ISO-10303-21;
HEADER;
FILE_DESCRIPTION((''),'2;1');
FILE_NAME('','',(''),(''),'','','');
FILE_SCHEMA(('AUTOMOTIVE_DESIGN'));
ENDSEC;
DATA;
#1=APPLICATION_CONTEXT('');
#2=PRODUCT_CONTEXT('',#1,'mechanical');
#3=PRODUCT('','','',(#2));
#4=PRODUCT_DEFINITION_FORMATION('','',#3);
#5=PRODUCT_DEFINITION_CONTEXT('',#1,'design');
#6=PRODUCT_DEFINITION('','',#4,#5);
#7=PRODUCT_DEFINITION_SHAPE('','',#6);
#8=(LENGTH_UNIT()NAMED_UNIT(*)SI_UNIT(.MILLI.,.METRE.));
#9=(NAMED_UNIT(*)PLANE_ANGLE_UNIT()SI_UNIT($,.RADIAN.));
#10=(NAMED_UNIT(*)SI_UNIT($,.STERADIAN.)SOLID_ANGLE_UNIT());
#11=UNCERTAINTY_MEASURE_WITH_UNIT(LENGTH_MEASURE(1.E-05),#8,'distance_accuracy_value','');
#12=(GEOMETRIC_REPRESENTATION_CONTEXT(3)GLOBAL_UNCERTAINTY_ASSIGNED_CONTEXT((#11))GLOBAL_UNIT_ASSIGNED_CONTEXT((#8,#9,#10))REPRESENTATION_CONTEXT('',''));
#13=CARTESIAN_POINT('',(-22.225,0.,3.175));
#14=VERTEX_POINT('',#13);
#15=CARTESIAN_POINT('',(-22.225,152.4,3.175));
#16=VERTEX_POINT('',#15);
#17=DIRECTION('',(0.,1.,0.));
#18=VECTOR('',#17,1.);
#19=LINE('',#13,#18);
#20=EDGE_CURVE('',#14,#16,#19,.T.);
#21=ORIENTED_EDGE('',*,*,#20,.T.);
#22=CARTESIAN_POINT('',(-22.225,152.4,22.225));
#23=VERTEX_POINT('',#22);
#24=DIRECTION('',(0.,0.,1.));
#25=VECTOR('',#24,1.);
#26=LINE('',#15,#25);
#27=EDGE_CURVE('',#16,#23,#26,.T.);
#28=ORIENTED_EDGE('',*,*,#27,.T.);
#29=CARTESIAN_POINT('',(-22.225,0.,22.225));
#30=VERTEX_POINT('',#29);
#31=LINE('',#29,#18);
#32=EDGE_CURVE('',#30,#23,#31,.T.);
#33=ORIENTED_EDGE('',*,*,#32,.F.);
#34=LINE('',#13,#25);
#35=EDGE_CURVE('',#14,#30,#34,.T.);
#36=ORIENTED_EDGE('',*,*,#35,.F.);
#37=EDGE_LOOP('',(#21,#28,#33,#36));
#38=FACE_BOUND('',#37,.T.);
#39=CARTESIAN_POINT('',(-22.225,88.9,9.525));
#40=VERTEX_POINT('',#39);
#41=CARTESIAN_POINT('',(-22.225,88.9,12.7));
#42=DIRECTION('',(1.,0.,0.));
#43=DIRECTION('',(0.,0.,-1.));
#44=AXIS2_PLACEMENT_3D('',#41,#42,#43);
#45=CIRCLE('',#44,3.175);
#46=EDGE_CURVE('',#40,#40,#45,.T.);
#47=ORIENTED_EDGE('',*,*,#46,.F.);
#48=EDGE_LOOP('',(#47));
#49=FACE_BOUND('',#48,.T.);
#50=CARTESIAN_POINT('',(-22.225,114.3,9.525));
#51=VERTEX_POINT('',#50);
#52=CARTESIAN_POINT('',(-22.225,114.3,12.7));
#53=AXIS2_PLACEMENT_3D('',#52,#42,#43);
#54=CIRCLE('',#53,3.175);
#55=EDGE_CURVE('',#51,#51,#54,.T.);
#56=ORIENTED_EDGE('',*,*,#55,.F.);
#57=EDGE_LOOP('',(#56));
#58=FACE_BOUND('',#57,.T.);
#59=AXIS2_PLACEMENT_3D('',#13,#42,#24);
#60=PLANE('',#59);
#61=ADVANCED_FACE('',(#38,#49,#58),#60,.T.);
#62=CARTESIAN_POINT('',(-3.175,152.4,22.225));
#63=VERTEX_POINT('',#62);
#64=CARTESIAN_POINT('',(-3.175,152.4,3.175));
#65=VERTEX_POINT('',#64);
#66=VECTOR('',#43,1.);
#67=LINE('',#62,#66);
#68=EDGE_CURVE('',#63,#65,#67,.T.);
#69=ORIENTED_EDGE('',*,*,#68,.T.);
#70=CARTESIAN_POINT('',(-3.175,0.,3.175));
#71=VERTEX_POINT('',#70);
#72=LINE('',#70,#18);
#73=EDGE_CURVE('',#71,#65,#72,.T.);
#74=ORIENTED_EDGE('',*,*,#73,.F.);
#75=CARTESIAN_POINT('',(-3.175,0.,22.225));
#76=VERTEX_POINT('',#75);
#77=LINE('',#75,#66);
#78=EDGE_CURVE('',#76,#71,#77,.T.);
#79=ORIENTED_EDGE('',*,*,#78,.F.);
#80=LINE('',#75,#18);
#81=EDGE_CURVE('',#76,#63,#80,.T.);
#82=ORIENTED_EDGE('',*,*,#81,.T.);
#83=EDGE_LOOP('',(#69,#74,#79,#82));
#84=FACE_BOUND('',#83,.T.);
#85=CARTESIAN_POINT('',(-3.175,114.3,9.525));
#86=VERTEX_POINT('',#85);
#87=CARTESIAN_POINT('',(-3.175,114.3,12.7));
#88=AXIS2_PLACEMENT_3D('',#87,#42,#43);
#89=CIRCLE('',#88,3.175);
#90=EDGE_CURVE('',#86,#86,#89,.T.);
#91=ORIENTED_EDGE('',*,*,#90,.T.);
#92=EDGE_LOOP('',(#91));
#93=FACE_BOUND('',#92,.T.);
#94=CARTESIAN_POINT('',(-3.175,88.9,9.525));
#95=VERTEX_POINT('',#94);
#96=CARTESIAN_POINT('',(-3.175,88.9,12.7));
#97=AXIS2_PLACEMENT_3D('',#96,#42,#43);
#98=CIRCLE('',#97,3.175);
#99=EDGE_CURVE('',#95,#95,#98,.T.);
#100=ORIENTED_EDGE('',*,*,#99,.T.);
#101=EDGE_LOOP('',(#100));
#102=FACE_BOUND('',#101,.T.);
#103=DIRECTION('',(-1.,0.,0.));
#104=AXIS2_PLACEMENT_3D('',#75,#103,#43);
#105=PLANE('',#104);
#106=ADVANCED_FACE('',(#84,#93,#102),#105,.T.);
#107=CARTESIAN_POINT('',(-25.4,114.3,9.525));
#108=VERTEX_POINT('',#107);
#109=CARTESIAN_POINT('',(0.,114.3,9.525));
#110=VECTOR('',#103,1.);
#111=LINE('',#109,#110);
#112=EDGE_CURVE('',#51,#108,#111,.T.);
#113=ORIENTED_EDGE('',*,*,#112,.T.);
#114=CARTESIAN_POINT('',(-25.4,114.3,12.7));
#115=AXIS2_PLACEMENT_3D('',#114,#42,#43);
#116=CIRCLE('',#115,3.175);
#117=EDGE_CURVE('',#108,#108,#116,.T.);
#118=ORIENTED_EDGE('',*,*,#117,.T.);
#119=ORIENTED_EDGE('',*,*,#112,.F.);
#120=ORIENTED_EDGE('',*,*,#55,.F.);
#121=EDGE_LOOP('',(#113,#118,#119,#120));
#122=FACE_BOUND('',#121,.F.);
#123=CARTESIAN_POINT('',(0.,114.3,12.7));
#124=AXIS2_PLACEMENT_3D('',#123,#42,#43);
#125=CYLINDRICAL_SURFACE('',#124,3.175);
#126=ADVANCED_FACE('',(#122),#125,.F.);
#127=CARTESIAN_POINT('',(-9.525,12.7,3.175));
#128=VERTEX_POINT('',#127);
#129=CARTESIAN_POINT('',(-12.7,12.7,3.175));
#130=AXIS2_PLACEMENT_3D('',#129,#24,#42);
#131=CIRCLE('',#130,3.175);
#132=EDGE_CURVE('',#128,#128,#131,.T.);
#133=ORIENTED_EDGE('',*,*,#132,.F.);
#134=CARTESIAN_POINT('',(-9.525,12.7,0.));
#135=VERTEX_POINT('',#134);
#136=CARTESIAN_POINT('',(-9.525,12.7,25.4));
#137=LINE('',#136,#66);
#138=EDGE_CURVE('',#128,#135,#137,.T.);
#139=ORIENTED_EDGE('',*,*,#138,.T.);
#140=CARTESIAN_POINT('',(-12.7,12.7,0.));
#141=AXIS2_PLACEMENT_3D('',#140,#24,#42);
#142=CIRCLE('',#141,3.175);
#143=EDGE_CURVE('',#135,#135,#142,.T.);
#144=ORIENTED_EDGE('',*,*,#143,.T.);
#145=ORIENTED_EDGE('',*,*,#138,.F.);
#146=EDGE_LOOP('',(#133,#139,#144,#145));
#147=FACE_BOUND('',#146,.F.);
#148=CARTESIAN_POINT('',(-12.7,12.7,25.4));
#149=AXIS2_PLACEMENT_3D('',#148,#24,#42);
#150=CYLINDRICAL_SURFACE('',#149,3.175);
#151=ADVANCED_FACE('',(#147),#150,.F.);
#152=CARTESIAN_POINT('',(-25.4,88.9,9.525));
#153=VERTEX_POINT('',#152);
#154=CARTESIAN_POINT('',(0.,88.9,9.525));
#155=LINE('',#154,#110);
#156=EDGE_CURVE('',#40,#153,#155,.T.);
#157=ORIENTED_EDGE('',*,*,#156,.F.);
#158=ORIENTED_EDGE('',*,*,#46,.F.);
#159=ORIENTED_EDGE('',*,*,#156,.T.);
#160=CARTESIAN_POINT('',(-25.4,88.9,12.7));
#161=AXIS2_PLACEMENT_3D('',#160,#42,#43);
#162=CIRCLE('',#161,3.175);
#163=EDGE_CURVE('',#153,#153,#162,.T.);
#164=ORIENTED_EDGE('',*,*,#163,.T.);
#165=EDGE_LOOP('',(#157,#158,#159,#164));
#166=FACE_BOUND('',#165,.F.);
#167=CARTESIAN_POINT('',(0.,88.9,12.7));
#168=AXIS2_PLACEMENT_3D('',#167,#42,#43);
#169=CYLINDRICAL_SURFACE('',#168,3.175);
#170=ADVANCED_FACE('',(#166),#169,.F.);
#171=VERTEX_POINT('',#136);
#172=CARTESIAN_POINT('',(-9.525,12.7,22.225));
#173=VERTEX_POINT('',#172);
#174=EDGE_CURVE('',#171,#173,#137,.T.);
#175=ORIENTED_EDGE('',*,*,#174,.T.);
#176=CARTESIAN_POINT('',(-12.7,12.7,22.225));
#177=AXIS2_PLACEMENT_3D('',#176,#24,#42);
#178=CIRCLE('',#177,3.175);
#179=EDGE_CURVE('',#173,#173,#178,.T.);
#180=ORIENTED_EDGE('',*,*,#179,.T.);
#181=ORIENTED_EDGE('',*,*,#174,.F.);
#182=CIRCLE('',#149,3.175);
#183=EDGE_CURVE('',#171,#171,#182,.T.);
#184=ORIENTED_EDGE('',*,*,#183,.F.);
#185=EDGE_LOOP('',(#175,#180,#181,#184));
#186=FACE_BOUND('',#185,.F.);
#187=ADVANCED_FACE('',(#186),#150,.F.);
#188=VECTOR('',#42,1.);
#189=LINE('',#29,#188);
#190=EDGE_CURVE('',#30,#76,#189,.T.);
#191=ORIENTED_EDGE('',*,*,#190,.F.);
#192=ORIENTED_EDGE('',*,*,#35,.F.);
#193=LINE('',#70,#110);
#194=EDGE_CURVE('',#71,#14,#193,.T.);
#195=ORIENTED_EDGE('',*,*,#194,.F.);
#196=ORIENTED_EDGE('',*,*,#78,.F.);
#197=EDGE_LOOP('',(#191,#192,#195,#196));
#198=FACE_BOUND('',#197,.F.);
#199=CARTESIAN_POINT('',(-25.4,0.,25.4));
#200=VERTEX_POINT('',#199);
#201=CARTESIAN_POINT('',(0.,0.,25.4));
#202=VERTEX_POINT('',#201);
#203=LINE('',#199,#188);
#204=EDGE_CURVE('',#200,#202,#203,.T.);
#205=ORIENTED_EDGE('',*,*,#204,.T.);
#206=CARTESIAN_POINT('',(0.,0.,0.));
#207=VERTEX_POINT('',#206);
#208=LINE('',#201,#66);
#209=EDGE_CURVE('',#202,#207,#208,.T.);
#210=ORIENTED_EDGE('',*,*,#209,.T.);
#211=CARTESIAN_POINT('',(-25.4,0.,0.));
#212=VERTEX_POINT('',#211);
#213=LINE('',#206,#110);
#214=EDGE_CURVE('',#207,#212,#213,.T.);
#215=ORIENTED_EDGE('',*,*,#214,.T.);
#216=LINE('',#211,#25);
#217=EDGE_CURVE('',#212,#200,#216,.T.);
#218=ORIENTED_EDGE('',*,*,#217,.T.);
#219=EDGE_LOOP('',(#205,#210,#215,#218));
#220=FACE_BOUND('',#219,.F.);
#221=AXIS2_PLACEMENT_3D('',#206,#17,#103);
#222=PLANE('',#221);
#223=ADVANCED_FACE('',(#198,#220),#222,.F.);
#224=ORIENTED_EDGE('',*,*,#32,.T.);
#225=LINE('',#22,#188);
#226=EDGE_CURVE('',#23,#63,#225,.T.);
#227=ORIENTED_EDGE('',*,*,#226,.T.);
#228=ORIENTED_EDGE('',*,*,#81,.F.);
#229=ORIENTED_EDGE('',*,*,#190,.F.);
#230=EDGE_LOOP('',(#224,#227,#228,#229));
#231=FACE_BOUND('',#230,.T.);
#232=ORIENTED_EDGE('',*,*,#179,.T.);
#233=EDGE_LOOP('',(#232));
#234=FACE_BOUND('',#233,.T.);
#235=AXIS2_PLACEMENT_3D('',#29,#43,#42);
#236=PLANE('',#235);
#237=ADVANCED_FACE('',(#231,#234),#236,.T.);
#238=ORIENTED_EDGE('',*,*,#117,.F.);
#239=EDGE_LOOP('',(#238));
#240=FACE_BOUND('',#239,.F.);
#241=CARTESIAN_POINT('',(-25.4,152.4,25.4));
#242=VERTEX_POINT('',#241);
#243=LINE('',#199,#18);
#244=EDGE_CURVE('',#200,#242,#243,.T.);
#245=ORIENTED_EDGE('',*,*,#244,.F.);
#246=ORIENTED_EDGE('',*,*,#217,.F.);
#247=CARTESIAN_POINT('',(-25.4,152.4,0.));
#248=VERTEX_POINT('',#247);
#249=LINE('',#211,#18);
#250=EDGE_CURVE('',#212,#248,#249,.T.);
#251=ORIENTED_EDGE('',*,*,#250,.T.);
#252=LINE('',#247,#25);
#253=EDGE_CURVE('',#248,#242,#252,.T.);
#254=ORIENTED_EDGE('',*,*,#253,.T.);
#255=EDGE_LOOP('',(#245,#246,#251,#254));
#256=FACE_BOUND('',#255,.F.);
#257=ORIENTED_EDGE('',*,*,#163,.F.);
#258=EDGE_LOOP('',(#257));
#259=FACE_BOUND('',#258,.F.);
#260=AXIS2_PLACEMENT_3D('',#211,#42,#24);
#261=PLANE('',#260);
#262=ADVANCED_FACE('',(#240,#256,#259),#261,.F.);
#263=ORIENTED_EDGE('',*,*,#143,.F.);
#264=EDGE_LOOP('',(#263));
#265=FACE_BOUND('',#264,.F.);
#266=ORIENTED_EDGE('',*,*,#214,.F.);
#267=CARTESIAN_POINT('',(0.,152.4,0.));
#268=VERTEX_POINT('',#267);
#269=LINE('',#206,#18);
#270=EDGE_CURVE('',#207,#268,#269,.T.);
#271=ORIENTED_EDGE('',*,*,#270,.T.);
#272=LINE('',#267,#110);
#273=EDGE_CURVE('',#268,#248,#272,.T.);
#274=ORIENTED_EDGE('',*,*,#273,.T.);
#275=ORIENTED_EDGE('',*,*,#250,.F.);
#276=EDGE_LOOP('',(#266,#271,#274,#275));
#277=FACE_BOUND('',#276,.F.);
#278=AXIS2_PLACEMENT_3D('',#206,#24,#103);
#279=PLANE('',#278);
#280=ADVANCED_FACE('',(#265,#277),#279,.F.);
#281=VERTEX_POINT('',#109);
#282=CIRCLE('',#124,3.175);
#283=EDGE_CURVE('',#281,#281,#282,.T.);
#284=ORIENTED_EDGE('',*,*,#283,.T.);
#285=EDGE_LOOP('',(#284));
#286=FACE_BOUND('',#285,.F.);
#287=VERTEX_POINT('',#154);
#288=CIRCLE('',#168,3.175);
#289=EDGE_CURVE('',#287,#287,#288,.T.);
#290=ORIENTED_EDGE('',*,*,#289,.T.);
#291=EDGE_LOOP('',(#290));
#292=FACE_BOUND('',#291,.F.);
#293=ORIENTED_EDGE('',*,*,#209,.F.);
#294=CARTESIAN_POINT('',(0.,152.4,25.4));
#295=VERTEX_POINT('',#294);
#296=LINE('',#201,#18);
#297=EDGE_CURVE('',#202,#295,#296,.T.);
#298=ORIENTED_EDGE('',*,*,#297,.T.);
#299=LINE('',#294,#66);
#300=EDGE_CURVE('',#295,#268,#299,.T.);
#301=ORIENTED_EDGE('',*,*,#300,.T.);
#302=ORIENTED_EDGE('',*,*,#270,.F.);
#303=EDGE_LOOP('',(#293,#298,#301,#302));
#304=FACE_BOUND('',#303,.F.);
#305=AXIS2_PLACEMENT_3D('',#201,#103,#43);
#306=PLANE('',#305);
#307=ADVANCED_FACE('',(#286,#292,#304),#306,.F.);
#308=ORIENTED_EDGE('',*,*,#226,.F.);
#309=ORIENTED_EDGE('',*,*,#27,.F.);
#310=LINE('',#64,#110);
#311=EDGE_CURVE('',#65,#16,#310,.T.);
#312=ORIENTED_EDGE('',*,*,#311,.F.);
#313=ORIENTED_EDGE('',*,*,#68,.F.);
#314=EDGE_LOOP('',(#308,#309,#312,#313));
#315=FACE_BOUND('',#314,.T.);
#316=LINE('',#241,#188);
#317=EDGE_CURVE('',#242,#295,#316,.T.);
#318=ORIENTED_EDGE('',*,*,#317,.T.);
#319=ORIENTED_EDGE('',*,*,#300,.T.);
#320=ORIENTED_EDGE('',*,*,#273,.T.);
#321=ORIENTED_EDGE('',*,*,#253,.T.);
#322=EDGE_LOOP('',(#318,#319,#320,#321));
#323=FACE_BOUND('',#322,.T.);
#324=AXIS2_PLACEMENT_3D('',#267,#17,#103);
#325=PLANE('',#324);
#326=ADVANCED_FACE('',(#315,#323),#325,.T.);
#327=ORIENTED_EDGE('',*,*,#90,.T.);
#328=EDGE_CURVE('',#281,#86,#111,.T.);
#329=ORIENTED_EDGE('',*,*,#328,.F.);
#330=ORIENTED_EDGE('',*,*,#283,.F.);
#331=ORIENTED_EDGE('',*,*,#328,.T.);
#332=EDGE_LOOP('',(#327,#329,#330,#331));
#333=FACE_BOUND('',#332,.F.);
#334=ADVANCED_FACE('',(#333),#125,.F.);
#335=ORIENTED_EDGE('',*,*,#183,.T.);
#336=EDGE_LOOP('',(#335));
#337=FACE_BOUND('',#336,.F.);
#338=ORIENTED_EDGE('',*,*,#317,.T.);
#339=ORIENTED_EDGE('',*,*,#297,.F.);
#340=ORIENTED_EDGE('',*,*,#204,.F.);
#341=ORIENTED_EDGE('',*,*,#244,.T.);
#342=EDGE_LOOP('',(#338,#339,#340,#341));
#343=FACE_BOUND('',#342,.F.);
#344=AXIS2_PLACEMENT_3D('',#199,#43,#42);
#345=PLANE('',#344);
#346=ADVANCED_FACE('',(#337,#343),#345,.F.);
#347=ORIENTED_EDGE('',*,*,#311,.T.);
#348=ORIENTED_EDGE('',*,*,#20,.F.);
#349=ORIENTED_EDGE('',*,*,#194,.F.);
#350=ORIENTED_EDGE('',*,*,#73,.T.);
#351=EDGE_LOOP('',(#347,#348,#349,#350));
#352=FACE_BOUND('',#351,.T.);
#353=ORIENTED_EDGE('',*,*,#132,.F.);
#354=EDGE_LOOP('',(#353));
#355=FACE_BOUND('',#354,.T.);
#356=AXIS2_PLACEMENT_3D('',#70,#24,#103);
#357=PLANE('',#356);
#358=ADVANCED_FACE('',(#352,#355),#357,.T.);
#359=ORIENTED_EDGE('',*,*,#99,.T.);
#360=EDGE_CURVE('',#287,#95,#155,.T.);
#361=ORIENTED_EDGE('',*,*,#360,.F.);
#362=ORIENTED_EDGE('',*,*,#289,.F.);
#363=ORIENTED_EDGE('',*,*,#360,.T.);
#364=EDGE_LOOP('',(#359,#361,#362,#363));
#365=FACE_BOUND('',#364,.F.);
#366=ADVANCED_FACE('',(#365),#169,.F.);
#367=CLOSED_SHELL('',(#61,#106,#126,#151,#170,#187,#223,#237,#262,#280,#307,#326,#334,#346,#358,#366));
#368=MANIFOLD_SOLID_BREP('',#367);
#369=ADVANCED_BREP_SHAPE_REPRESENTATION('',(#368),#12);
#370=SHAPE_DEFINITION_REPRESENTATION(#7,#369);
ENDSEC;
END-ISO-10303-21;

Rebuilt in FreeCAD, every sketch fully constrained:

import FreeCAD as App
import Part
import Sketcher
Q = App.Units.Quantity


def add_polygon(sketch, points):
    """Adds a closed chain of lines whose ends are joined by coincident constraints."""
    first, n = sketch.GeometryCount, len(points)
    for a, b in zip(points, points[1:] + points[:1]):
        sketch.addGeometry(Part.LineSegment(App.Vector(*a, 0), App.Vector(*b, 0)), False)
    for i in range(n):
        sketch.addConstraint(Sketcher.Constraint("Coincident", first + i, 2, first + (i + 1) % n, 1))

doc = App.newDocument("Part")
body = doc.addObject("PartDesign::Body", "Body")

# Sketch on XZ plane
sketch1 = body.newObject("Sketcher::SketchObject", "Sketch")
sketch1.AttachmentSupport = (doc.getObject("XZ_Plane"), [""])
sketch1.MapMode = "FlatFace"
add_polygon(sketch1, [(0, 25), (0, 0), (-25, 0), (-25, 25)])  # lines 0-3
add_polygon(sketch1, [(-3, 22), (-22, 22), (-22, 3), (-3, 3)])  # lines 4-7
sketch1.addConstraint([
    Sketcher.Constraint("Vertical", 0),
    Sketcher.Constraint("Horizontal", 1),
    Sketcher.Constraint("Vertical", 2),
    Sketcher.Constraint("Horizontal", 3),
    Sketcher.Constraint("Horizontal", 4),
    Sketcher.Constraint("Vertical", 5),
    Sketcher.Constraint("Horizontal", 6),
    Sketcher.Constraint("Vertical", 7),
    Sketcher.Constraint("Coincident", 0, 2, -1, 1),
    Sketcher.Constraint("Equal", 3, 0),
    Sketcher.Constraint("Equal", 6, 5),
    Sketcher.Constraint("DistanceX", 1, 2, 1, 1, Q("1 in")),
    Sketcher.Constraint("DistanceY", -1, 1, 5, 2, Q("0.125 in")),
    Sketcher.Constraint("DistanceX", 6, 2, -1, 1, Q("0.125 in")),
    Sketcher.Constraint("DistanceX", 2, 2, 4, 2, Q("0.125 in")),
])
pad1 = body.newObject("PartDesign::Pad", "Pad")
pad1.Profile = sketch1
pad1.Length = Q("6 in")
pad1.Reversed = True

# Sketch on YZ plane
sketch2 = body.newObject("Sketcher::SketchObject", "Sketch001")
sketch2.AttachmentSupport = (doc.getObject("YZ_Plane"), [""])
sketch2.MapMode = "FlatFace"
sketch2.addGeometry([
    Part.Circle(App.Vector(114.3, 12.7, 0), App.Vector(0, 0, 1), 3.2),
    Part.Circle(App.Vector(88.9, 12.7, 0), App.Vector(0, 0, 1), 3.2),
], False)
sketch2.addConstraint([
    Sketcher.Constraint("Equal", 0, 1),
    Sketcher.Constraint("Horizontal", 0, 3, 1, 3),
    Sketcher.Constraint("Diameter", 0, Q("0.25 in")),
    Sketcher.Constraint("DistanceX", 1, 3, 0, 3, Q("1 in")),
    Sketcher.Constraint("DistanceY", -1, 1, 0, 3, Q("0.5 in")),
    Sketcher.Constraint("DistanceX", -1, 1, 0, 3, Q("4.5 in")),
])
pocket1 = body.newObject("PartDesign::Pocket", "Pocket")
pocket1.Profile = sketch2
pocket1.Length = Q("1 in")

# Sketch on XY plane
sketch3 = body.newObject("Sketcher::SketchObject", "Sketch002")
sketch3.AttachmentSupport = (doc.getObject("XY_Plane"), [""])
sketch3.MapMode = "FlatFace"
sketch3.AttachmentOffset = App.Placement(App.Vector(0, 0, 1 * 25.4), App.Rotation())
sketch3.addGeometry(Part.Circle(App.Vector(-12.7, 12.7, 0), App.Vector(0, 0, 1), 3.2), False)
sketch3.addConstraint([
    Sketcher.Constraint("Diameter", 0, Q("0.25 in")),
    Sketcher.Constraint("DistanceX", 0, 3, -1, 1, Q("0.5 in")),
    Sketcher.Constraint("DistanceY", -1, 1, 0, 3, Q("0.5 in")),
])
pocket2 = body.newObject("PartDesign::Pocket", "Pocket001")
pocket2.Profile = sketch3
pocket2.Length = Q("1 in")

doc.recompute()
